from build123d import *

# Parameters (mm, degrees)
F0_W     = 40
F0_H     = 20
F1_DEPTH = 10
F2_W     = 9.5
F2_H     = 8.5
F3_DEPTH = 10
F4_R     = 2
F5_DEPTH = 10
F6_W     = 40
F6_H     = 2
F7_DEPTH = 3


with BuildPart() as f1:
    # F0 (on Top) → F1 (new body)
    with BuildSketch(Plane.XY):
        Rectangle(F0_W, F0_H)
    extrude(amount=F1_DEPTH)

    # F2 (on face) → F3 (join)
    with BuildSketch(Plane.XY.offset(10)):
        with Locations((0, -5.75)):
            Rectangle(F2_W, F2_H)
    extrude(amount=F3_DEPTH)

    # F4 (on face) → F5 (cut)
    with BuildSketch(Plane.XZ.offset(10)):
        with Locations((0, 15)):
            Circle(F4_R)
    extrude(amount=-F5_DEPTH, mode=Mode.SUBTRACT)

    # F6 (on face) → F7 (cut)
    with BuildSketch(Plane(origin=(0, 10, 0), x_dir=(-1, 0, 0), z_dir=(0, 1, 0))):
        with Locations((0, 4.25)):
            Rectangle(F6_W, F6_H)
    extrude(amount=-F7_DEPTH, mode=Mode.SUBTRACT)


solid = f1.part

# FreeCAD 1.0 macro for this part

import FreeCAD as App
import Part
import Sketcher
from FreeCAD import Vector


def add_polygon(sketch, points):
    """Adds a closed chain of lines whose ends are joined by coincident constraints."""
    first, n = sketch.GeometryCount, len(points)
    for a, b in zip(points, points[1:] + points[:1]):
        sketch.addGeometry(Part.LineSegment(App.Vector(*a, 0), App.Vector(*b, 0)), False)
    for i in range(n):
        sketch.addConstraint(Sketcher.Constraint("Coincident", first + i, 2, first + (i + 1) % n, 1))

doc = App.newDocument("Part")
body = doc.addObject("PartDesign::Body", "Body")

# Sketch on XY plane
sketch1 = body.newObject("Sketcher::SketchObject", "Sketch")
sketch1.AttachmentSupport = (doc.getObject("XY_Plane"), [""])
sketch1.MapMode = "FlatFace"
add_polygon(sketch1, [(-20, 10), (-20, -10), (20, -10), (20, 10)])  # lines 0-3
sketch1.addConstraint(Sketcher.Constraint("Vertical", 0))
sketch1.addConstraint(Sketcher.Constraint("Horizontal", 1))
sketch1.addConstraint(Sketcher.Constraint("Vertical", 2))
sketch1.addConstraint(Sketcher.Constraint("Horizontal", 3))
sketch1.addConstraint(Sketcher.Constraint("Symmetric", 0, 2, 2, 2, -1, 1))
sketch1.addConstraint(Sketcher.Constraint("DistanceX", 1, 1, 1, 2, 40.0))
sketch1.addConstraint(Sketcher.Constraint("DistanceY", 0, 2, 0, 1, 20.0))
pad1 = body.newObject("PartDesign::Pad", "Pad")
pad1.Profile = sketch1
pad1.Length = 10

# Sketch on XY plane
sketch2 = body.newObject("Sketcher::SketchObject", "Sketch001")
sketch2.AttachmentSupport = (doc.getObject("XY_Plane"), [""])
sketch2.MapMode = "FlatFace"
sketch2.AttachmentOffset = App.Placement(Vector(0, 0, 10), App.Rotation())
add_polygon(sketch2, [(-4.75, -1.5), (-4.75, -10), (4.75, -10), (4.75, -1.5)])  # lines 0-3
sketch2.addConstraint(Sketcher.Constraint("Vertical", 0))
sketch2.addConstraint(Sketcher.Constraint("Horizontal", 1))
sketch2.addConstraint(Sketcher.Constraint("Vertical", 2))
sketch2.addConstraint(Sketcher.Constraint("Horizontal", 3))
sketch2.addConstraint(Sketcher.Constraint("DistanceX", 1, 1, 1, 2, 9.5))
sketch2.addConstraint(Sketcher.Constraint("DistanceY", 0, 2, 0, 1, 8.5))
sketch2.addConstraint(Sketcher.Constraint("DistanceY", 0, 2, -1, 1, 10.0))
sketch2.addConstraint(Sketcher.Constraint("DistanceX", 0, 2, -1, 1, 4.75))
pad2 = body.newObject("PartDesign::Pad", "Pad001")
pad2.Profile = sketch2
pad2.Length = 10

# Sketch on XZ plane
sketch3 = body.newObject("Sketcher::SketchObject", "Sketch002")
sketch3.AttachmentSupport = (doc.getObject("XZ_Plane"), [""])
sketch3.MapMode = "FlatFace"
sketch3.AttachmentOffset = App.Placement(Vector(0, 0, 10), App.Rotation())
sketch3.addGeometry(Part.Circle(Vector(0, 15, 0), Vector(0, 0, 1), 2), False)
sketch3.addConstraint(Sketcher.Constraint("PointOnObject", 0, 3, -2))
sketch3.addConstraint(Sketcher.Constraint("Diameter", 0, 4.0))
sketch3.addConstraint(Sketcher.Constraint("DistanceY", -1, 1, 0, 3, 15.0))
pocket1 = body.newObject("PartDesign::Pocket", "Pocket")
pocket1.Profile = sketch3
pocket1.Length = 10

# Sketch on XZ plane
sketch4 = body.newObject("Sketcher::SketchObject", "Sketch003")
sketch4.AttachmentSupport = (doc.getObject("XZ_Plane"), [""])
sketch4.MapMode = "FlatFace"
sketch4.AttachmentOffset = App.Placement(Vector(0, 0, -10), App.Rotation())
add_polygon(sketch4, [(20, 5.25), (20, 3.25), (-20, 3.25), (-20, 5.25)])  # lines 0-3
sketch4.addConstraint(Sketcher.Constraint("Vertical", 0))
sketch4.addConstraint(Sketcher.Constraint("Horizontal", 1))
sketch4.addConstraint(Sketcher.Constraint("Vertical", 2))
sketch4.addConstraint(Sketcher.Constraint("Horizontal", 3))
sketch4.addConstraint(Sketcher.Constraint("DistanceX", 1, 2, 1, 1, 40.0))
sketch4.addConstraint(Sketcher.Constraint("DistanceY", 0, 2, 0, 1, 2.0))
sketch4.addConstraint(Sketcher.Constraint("DistanceX", -1, 1, 0, 2, 20.0))
sketch4.addConstraint(Sketcher.Constraint("DistanceY", -1, 1, 0, 2, 3.25))
pocket2 = body.newObject("PartDesign::Pocket", "Pocket001")
pocket2.Profile = sketch4
pocket2.Length = 3
pocket2.Reversed = True

doc.recompute()
